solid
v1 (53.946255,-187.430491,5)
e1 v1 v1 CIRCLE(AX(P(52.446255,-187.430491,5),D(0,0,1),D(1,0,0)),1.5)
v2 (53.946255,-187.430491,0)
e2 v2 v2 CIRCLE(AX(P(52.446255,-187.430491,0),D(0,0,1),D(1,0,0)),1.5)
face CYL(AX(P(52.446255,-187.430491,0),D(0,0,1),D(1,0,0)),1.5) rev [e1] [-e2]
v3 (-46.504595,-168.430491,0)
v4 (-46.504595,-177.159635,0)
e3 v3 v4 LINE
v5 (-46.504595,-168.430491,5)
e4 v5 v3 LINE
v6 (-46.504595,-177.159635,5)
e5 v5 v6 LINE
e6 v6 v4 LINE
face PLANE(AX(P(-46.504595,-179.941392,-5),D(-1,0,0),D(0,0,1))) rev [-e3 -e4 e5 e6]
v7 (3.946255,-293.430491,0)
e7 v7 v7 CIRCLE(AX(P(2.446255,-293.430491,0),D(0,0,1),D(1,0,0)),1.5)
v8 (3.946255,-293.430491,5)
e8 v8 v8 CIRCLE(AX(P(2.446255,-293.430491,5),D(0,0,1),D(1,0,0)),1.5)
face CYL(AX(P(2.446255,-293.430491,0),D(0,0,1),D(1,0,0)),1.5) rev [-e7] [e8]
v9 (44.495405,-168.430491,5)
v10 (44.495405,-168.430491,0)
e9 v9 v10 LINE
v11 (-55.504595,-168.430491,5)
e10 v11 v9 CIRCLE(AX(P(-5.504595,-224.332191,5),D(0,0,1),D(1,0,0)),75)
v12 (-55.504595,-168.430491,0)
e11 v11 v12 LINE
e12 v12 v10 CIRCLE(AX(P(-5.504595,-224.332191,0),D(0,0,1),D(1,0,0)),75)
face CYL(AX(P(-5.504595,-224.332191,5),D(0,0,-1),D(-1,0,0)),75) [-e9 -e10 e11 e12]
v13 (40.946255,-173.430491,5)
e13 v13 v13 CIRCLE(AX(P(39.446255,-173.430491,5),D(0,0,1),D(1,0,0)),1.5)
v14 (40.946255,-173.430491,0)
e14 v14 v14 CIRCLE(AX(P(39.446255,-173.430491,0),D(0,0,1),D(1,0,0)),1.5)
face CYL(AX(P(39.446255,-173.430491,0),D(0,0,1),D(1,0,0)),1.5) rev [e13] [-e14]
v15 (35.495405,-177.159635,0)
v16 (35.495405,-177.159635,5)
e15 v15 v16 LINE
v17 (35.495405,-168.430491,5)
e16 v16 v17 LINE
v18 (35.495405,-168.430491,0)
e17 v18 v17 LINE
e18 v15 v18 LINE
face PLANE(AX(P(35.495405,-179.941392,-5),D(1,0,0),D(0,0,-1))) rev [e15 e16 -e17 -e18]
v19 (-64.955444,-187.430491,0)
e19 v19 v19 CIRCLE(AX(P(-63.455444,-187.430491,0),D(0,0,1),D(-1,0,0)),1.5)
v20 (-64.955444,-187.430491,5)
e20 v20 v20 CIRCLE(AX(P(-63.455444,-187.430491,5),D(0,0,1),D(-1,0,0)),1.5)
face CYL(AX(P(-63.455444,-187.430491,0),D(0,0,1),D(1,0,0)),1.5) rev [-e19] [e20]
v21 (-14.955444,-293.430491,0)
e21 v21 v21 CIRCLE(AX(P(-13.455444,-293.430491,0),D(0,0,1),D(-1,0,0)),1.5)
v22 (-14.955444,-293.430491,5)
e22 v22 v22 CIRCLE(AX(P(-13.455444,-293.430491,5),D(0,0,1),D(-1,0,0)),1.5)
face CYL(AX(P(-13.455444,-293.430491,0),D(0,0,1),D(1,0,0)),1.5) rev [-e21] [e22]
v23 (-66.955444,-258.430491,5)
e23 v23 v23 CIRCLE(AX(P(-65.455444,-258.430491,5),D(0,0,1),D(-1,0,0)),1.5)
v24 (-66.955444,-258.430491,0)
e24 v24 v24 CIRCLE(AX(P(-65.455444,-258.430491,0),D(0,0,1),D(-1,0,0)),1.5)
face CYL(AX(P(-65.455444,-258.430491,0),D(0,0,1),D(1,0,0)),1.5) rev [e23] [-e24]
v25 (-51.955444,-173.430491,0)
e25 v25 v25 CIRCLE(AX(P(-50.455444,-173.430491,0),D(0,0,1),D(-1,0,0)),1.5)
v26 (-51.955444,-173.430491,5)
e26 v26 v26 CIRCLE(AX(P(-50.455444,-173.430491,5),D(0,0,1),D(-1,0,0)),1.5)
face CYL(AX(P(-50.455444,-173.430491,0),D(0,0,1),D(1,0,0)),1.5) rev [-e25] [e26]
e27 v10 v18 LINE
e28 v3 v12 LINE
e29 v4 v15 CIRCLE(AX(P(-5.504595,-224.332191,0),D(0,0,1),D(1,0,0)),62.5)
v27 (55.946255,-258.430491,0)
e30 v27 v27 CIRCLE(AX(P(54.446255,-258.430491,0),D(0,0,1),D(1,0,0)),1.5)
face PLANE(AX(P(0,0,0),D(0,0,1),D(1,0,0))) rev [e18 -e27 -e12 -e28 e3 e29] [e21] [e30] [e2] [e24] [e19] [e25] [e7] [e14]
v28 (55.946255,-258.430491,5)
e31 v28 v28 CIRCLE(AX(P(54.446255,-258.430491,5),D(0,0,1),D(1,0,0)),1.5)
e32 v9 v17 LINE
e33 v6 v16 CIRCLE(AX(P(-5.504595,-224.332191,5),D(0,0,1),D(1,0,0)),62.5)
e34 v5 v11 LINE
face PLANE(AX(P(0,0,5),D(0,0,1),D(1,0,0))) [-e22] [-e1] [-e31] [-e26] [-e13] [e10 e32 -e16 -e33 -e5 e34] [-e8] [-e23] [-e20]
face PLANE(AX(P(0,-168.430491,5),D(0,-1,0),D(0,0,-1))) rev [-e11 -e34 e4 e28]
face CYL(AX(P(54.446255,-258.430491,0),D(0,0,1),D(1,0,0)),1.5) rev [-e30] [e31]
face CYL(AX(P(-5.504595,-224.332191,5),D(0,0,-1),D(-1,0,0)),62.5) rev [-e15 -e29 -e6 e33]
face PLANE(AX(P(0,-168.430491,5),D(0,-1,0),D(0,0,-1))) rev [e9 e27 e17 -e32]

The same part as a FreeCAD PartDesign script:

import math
import FreeCAD as App
import Part
import Sketcher
Q = App.Units.Quantity


def add_polygon(sketch, points):
    """Adds a closed chain of lines whose ends are joined by coincident constraints."""
    first, n = sketch.GeometryCount, len(points)
    for a, b in zip(points, points[1:] + points[:1]):
        sketch.addGeometry(Part.LineSegment(App.Vector(*a, 0), App.Vector(*b, 0)), False)
    for i in range(n):
        sketch.addConstraint(Sketcher.Constraint("Coincident", first + i, 2, first + (i + 1) % n, 1))

doc = App.newDocument("Part")
body = doc.addObject("PartDesign::Body", "Body")

# Sketch on XY plane
sketch1 = doc.addObject("Sketcher::SketchObject", "Sketch")
body.addObject(sketch1)
sketch1.AttachmentSupport = (doc.XY_Plane, [""])
sketch1.MapMode = "FlatFace"
sketch1.addGeometry([
    Part.LineSegment(App.Vector(44.495405, -168.430491, 0), App.Vector(22.446255, -168.430491, 0)),
    Part.ArcOfCircle(Part.Circle(App.Vector(-5.504595, -224.332191, 0), App.Vector(0, 0, 1), 62.5), math.radians(116.565051), math.radians(423.434949)),
    Part.LineSegment(App.Vector(-33.455444, -168.430491, 0), App.Vector(-55.504595, -168.430491, 0)),
    Part.ArcOfCircle(Part.Circle(App.Vector(-5.504595, -224.332191, 0), App.Vector(0, 0, 1), 75), math.radians(131.810315), math.radians(408.189685)),
], False)
sketch1.addConstraint([
    Sketcher.Constraint("Coincident", 0, 2, 1, 2),
    Sketcher.Constraint("Coincident", 1, 1, 2, 1),
    Sketcher.Constraint("Coincident", 2, 2, 3, 1),
    Sketcher.Constraint("Coincident", 3, 2, 0, 1),
    Sketcher.Constraint("Horizontal", 0),
    Sketcher.Constraint("Horizontal", 2),
    Sketcher.Constraint("Coincident", 3, 3, 1, 3),
    Sketcher.Constraint("Horizontal", 0, 2, 1, 1),
    Sketcher.Constraint("Radius", 3, Q("75 mm")),
    Sketcher.Constraint("Radius", 1, Q("62.5 mm")),
    Sketcher.Constraint("DistanceX", 2, 2, 1, 3, Q("50 mm")),
    Sketcher.Constraint("DistanceY", 1, 3, -1, 1, Q("224.332191 mm")),
    Sketcher.Constraint("DistanceX", 1, 3, -1, 1, Q("5.504595 mm")),
])
pad1 = doc.addObject("PartDesign::Pad", "Pad")
body.addObject(pad1)
pad1.Profile = sketch1
pad1.Length = 5

# Sketch on XY plane
sketch2 = doc.addObject("Sketcher::SketchObject", "Sketch001")
body.addObject(sketch2)
sketch2.AttachmentSupport = (doc.XY_Plane, [""])
sketch2.MapMode = "FlatFace"
sketch2.AttachmentOffset = App.Placement(App.Vector(0, 0, 5), App.Rotation())
sketch2.addGeometry([
    Part.Circle(App.Vector(39.446255, -173.430491, 0), App.Vector(0, 0, 1), 1.5),  # 0
    Part.Circle(App.Vector(52.446255, -187.430491, 0), App.Vector(0, 0, 1), 1.5),  # 1
    Part.Circle(App.Vector(54.446255, -258.430491, 0), App.Vector(0, 0, 1), 1.5),  # 2
    Part.Circle(App.Vector(-13.455444, -293.430491, 0), App.Vector(0, 0, 1), 1.5),  # 3
    Part.Circle(App.Vector(2.446255, -293.430491, 0), App.Vector(0, 0, 1), 1.5),  # 4
    Part.Circle(App.Vector(-65.455444, -258.430491, 0), App.Vector(0, 0, 1), 1.5),  # 5
    Part.Circle(App.Vector(-63.455444, -187.430491, 0), App.Vector(0, 0, 1), 1.5),  # 6
    Part.Circle(App.Vector(-50.455444, -173.430491, 0), App.Vector(0, 0, 1), 1.5),  # 7
], False)
sketch2.addConstraint([
    Sketcher.Constraint("Equal", 0, 1),
    Sketcher.Constraint("Equal", 1, 2),
    Sketcher.Constraint("Equal", 2, 3),
    Sketcher.Constraint("Equal", 3, 4),
    Sketcher.Constraint("Equal", 4, 5),
    Sketcher.Constraint("Equal", 5, 6),
    Sketcher.Constraint("Equal", 6, 7),
    Sketcher.Constraint("Horizontal", 3, 3, 4, 3),
    Sketcher.Constraint("Horizontal", 2, 3, 5, 3),
    Sketcher.Constraint("Horizontal", 1, 3, 6, 3),
    Sketcher.Constraint("Horizontal", 0, 3, 7, 3),
    Sketcher.Constraint("Diameter", 0, Q("3 mm")),
    Sketcher.Constraint("DistanceX", 0, 3, 1, 3, Q("13 mm")),
    Sketcher.Constraint("DistanceY", 1, 3, 0, 3, Q("14 mm")),
    Sketcher.Constraint("DistanceX", 1, 3, 2, 3, Q("2 mm")),
    Sketcher.Constraint("DistanceY", 2, 3, 1, 3, Q("71 mm")),
    Sketcher.Constraint("DistanceY", 3, 3, 2, 3, Q("35 mm")),
    Sketcher.Constraint("DistanceX", 4, 3, 2, 3, Q("52 mm")),
    Sketcher.Constraint("DistanceX", 5, 3, 3, 3, Q("52 mm")),
    Sketcher.Constraint("DistanceX", 5, 3, 6, 3, Q("2 mm")),
    Sketcher.Constraint("DistanceX", 6, 3, 7, 3, Q("13 mm")),
    Sketcher.Constraint("DistanceX", 3, 3, 2, 3, Q("67.901699 mm")),
    Sketcher.Constraint("DistanceY", 0, 3, -1, 1, Q("173.430491 mm")),
    Sketcher.Constraint("DistanceX", -1, 1, 0, 3, Q("39.446255 mm")),
])
pocket1 = doc.addObject("PartDesign::Pocket", "Pocket")
body.addObject(pocket1)
pocket1.Profile = sketch2
pocket1.Type = "ThroughAll"

# Sketch on XY plane
sketch3 = doc.addObject("Sketcher::SketchObject", "Sketch002")
body.addObject(sketch3)
sketch3.AttachmentSupport = (doc.XY_Plane, [""])
sketch3.MapMode = "FlatFace"
sketch3.AttachmentOffset = App.Placement(App.Vector(0, 0, 5), App.Rotation())
add_polygon(sketch3, [(-46.504595, -161.148452), (-46.504595, -179.941392), (35.495405, -179.941392), (35.495405, -161.148452)])  # lines 0-3
sketch3.addConstraint([
    Sketcher.Constraint("Vertical", 0),
    Sketcher.Constraint("Horizontal", 1),
    Sketcher.Constraint("Vertical", 2),
    Sketcher.Constraint("Horizontal", 3),
    Sketcher.Constraint("DistanceX", 1, 1, 1, 2, Q("82 mm")),
    Sketcher.Constraint("DistanceY", 0, 2, 0, 1, Q("18.79294 mm")),
    Sketcher.Constraint("DistanceY", 0, 2, -1, 1, Q("179.941392 mm")),
    Sketcher.Constraint("DistanceX", 0, 2, -1, 1, Q("46.504595 mm")),
])
pocket2 = doc.addObject("PartDesign::Pocket", "Pocket001")
body.addObject(pocket2)
pocket2.Profile = sketch3
pocket2.Length = 10

doc.recompute()
